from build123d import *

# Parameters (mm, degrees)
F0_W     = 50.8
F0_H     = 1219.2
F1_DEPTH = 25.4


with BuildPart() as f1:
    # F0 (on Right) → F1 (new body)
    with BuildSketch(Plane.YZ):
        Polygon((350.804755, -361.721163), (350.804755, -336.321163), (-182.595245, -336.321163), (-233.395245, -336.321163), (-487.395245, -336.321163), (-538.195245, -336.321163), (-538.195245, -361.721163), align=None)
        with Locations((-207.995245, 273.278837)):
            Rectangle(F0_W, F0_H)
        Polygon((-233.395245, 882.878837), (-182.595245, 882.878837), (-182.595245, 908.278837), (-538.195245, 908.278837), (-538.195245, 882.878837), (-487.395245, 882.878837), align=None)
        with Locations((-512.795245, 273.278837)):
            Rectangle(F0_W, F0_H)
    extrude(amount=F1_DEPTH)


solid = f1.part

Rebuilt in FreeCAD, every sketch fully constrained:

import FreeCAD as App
import Part
import Sketcher

V = App.Vector
Q = App.Units.Quantity

doc = App.newDocument("Part")
params = doc.addObject("Spreadsheet::Sheet", "Params")
for row, (alias, value) in enumerate([
    ("sketch1_width", "21 in"),
    ("sketch1_width2", "14 in"),
    ("sketch1_width3", "10 in"),
    ("sketch1_height", "1 in"),
    ("sketch1_height2", "49 in"),
    ("pad1_length", "1 in"),
], start=1):
    params.set(f"A{row}", alias)
    params.set(f"B{row}", "=" + value)
    params.setAlias(f"B{row}", alias)

body = doc.addObject("PartDesign::Body", "Body")

sketch1 = body.newObject("Sketcher::SketchObject", "Sketch")
sketch1.AttachmentSupport = (doc.getObject("YZ_Plane"), [""])
sketch1.MapMode = "FlatFace"
sketch1.addGeometry(Part.LineSegment(V(351, -362, 0), V(351, -336, 0)), False)
sketch1.addGeometry(Part.LineSegment(V(351, -336, 0), V(-183, -336, 0)), False)
sketch1.addGeometry(Part.LineSegment(V(-183, -336, 0), V(-183, 908, 0)), False)
sketch1.addGeometry(Part.LineSegment(V(-183, 908, 0), V(-538, 908, 0)), False)
sketch1.addGeometry(Part.LineSegment(V(-538, 908, 0), V(-538, -362, 0)), False)
sketch1.addGeometry(Part.LineSegment(V(-538, -362, 0), V(351, -362, 0)), False)
sketch1.addGeometry(Part.LineSegment(V(-487, 883, 0), V(-233, 883, 0)), False)
sketch1.addGeometry(Part.LineSegment(V(-233, 883, 0), V(-233, -336, 0)), False)
sketch1.addGeometry(Part.LineSegment(V(-233, -336, 0), V(-487, -336, 0)), False)
sketch1.addGeometry(Part.LineSegment(V(-487, -336, 0), V(-487, 883, 0)), False)
sketch1.addConstraint(Sketcher.Constraint("Coincident", 0, 2, 1, 1))
sketch1.addConstraint(Sketcher.Constraint("Coincident", 1, 2, 2, 1))
sketch1.addConstraint(Sketcher.Constraint("Coincident", 2, 2, 3, 1))
sketch1.addConstraint(Sketcher.Constraint("Coincident", 3, 2, 4, 1))
sketch1.addConstraint(Sketcher.Constraint("Coincident", 4, 2, 5, 1))
sketch1.addConstraint(Sketcher.Constraint("Coincident", 5, 2, 0, 1))
sketch1.addConstraint(Sketcher.Constraint("Coincident", 6, 2, 7, 1))
sketch1.addConstraint(Sketcher.Constraint("Coincident", 7, 2, 8, 1))
sketch1.addConstraint(Sketcher.Constraint("Coincident", 8, 2, 9, 1))
sketch1.addConstraint(Sketcher.Constraint("Coincident", 9, 2, 6, 1))
sketch1.addConstraint(Sketcher.Constraint("Vertical", 0))
sketch1.addConstraint(Sketcher.Constraint("Horizontal", 1))
sketch1.addConstraint(Sketcher.Constraint("Vertical", 2))
sketch1.addConstraint(Sketcher.Constraint("Horizontal", 3))
sketch1.addConstraint(Sketcher.Constraint("Vertical", 4))
sketch1.addConstraint(Sketcher.Constraint("Horizontal", 5))
sketch1.addConstraint(Sketcher.Constraint("Horizontal", 6))
sketch1.addConstraint(Sketcher.Constraint("Vertical", 7))
sketch1.addConstraint(Sketcher.Constraint("Horizontal", 8))
sketch1.addConstraint(Sketcher.Constraint("Vertical", 9))
sketch1.addConstraint(Sketcher.Constraint("Horizontal", 1, 2, 7, 2))
sketch1.addConstraint(Sketcher.Constraint("DistanceX", 1, 2, 1, 1, Q("21 in")))
sketch1.addConstraint(Sketcher.Constraint("DistanceX", 3, 2, 3, 1, Q("14 in")))
sketch1.addConstraint(Sketcher.Constraint("DistanceX", 6, 1, 6, 2, Q("10 in")))
sketch1.addConstraint(Sketcher.Constraint("DistanceY", 0, 1, 0, 2, Q("1 in")))
sketch1.addConstraint(Sketcher.Constraint("DistanceY", 2, 1, 2, 2, Q("49 in")))
sketch1.addConstraint(Sketcher.Constraint("DistanceY", 7, 2, 7, 1, Q("48 in")))
sketch1.addConstraint(Sketcher.Constraint("DistanceX", 6, 2, 2, 2, Q("2 in")))
sketch1.addConstraint(Sketcher.Constraint("DistanceX", -1, 1, 0, 2, Q("350.804755 mm")))
sketch1.addConstraint(Sketcher.Constraint("DistanceY", 0, 2, -1, 1, Q("336.321163 mm")))
sketch1.setExpression("Constraints[21]", "Params.sketch1_width")
sketch1.setExpression("Constraints[22]", "Params.sketch1_width2")
sketch1.setExpression("Constraints[23]", "Params.sketch1_width3")
sketch1.setExpression("Constraints[24]", "Params.sketch1_height")
sketch1.setExpression("Constraints[25]", "Params.sketch1_height2")
pad1 = body.newObject("PartDesign::Pad", "Pad")
pad1.Profile = sketch1
pad1.setExpression("Length", "Params.pad1_length")

doc.recompute()
